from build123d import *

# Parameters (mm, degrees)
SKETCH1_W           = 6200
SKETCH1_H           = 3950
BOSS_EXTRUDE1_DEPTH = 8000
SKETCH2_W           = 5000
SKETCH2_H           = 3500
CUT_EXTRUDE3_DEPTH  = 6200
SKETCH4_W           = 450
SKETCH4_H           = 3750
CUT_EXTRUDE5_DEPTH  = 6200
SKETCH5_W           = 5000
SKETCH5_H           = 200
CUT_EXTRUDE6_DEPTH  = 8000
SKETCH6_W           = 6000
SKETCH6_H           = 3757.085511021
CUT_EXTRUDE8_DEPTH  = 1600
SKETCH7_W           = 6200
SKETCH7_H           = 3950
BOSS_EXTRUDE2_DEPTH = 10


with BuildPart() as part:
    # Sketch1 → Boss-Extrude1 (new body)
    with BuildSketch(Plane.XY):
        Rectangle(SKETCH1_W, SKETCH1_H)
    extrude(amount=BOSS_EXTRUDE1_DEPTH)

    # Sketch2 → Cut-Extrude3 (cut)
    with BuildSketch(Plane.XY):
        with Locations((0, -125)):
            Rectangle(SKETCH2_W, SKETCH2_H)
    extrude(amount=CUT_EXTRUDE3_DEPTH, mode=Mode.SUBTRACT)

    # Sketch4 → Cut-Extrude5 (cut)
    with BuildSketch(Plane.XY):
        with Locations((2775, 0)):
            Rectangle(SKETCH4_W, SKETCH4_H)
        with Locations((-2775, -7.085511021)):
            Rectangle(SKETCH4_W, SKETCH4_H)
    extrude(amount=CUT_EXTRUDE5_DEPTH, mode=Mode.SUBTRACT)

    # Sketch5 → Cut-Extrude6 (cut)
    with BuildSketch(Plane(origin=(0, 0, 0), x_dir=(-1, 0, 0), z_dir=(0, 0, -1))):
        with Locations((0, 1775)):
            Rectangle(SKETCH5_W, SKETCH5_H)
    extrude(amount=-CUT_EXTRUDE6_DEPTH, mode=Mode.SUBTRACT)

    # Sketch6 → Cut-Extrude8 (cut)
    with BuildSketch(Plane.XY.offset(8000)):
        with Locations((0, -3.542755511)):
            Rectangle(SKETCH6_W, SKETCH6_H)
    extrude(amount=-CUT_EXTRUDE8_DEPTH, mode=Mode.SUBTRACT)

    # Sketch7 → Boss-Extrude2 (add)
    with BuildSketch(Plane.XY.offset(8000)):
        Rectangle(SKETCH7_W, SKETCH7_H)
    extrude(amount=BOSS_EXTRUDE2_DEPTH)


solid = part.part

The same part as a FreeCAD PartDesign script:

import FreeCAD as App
import Part
import Sketcher
from FreeCAD import Vector
Q = App.Units.Quantity


def add_polygon(sketch, points):
    """Adds a closed chain of lines whose ends are joined by coincident constraints."""
    first, n = sketch.GeometryCount, len(points)
    for a, b in zip(points, points[1:] + points[:1]):
        sketch.addGeometry(Part.LineSegment(App.Vector(*a, 0), App.Vector(*b, 0)), False)
    for i in range(n):
        sketch.addConstraint(Sketcher.Constraint("Coincident", first + i, 2, first + (i + 1) % n, 1))

doc = App.newDocument("Part")
body = doc.addObject("PartDesign::Body", "Body")

# Sketch on XY plane
sketch1 = body.newObject("Sketcher::SketchObject", "Sketch")
sketch1.AttachmentSupport = (doc.getObject("XY_Plane"), [""])
sketch1.MapMode = "FlatFace"
add_polygon(sketch1, [(-3100, 1975), (-3100, -1975), (3100, -1975), (3100, 1975)])  # lines 0-3
sketch1.addConstraint([
    Sketcher.Constraint("Vertical", 0),
    Sketcher.Constraint("Horizontal", 1),
    Sketcher.Constraint("Vertical", 2),
    Sketcher.Constraint("Horizontal", 3),
    Sketcher.Constraint("Symmetric", 0, 2, 2, 2, -1, 1),
    Sketcher.Constraint("DistanceX", 1, 1, 1, 2, Q("6200 mm")),
    Sketcher.Constraint("DistanceY", 0, 2, 0, 1, Q("3950 mm")),
])
pad1 = body.newObject("PartDesign::Pad", "Pad")
pad1.Profile = sketch1
pad1.Length = 8000

# Sketch on XY plane
sketch2 = body.newObject("Sketcher::SketchObject", "Sketch001")
sketch2.AttachmentSupport = (doc.getObject("XY_Plane"), [""])
sketch2.MapMode = "FlatFace"
add_polygon(sketch2, [(-2500, 1625), (-2500, -1875), (2500, -1875), (2500, 1625)])  # lines 0-3
sketch2.addConstraint([
    Sketcher.Constraint("Vertical", 0),
    Sketcher.Constraint("Horizontal", 1),
    Sketcher.Constraint("Vertical", 2),
    Sketcher.Constraint("Horizontal", 3),
    Sketcher.Constraint("DistanceX", 1, 1, 1, 2, Q("5000 mm")),
    Sketcher.Constraint("DistanceY", 0, 2, 0, 1, Q("3500 mm")),
    Sketcher.Constraint("DistanceX", 0, 2, -1, 1, Q("2500 mm")),
    Sketcher.Constraint("DistanceY", 0, 2, -1, 1, Q("1875 mm")),
])
pocket1 = body.newObject("PartDesign::Pocket", "Pocket")
pocket1.Profile = sketch2
pocket1.Length = 6200
pocket1.Reversed = True

# Sketch on XY plane
sketch3 = body.newObject("Sketcher::SketchObject", "Sketch002")
sketch3.AttachmentSupport = (doc.getObject("XY_Plane"), [""])
sketch3.MapMode = "FlatFace"
add_polygon(sketch3, [(2550, 1875), (2550, -1875), (3000, -1875), (3000, 1875)])  # lines 0-3
add_polygon(sketch3, [(-3000, 1868), (-3000, -1882), (-2550, -1882), (-2550, 1868)])  # lines 4-7
sketch3.addConstraint([
    Sketcher.Constraint("Vertical", 0),
    Sketcher.Constraint("Horizontal", 1),
    Sketcher.Constraint("Vertical", 2),
    Sketcher.Constraint("Horizontal", 3),
    Sketcher.Constraint("Vertical", 4),
    Sketcher.Constraint("Horizontal", 5),
    Sketcher.Constraint("Vertical", 6),
    Sketcher.Constraint("Horizontal", 7),
    Sketcher.Constraint("Equal", 3, 5),
    Sketcher.Constraint("Equal", 2, 4),
    Sketcher.Constraint("DistanceX", 1, 1, 1, 2, Q("450 mm")),
    Sketcher.Constraint("DistanceY", 0, 2, 0, 1, Q("3750 mm")),
    Sketcher.Constraint("DistanceX", -1, 1, 0, 2, Q("2550 mm")),
    Sketcher.Constraint("DistanceY", 0, 2, -1, 1, Q("1875 mm")),
    Sketcher.Constraint("DistanceX", 4, 2, -1, 1, Q("3000 mm")),
    Sketcher.Constraint("DistanceY", 4, 2, -1, 1, Q("1882.085511 mm")),
])
pocket2 = body.newObject("PartDesign::Pocket", "Pocket001")
pocket2.Profile = sketch3
pocket2.Length = 6200
pocket2.Reversed = True

# Sketch on XY plane
sketch4 = body.newObject("Sketcher::SketchObject", "Sketch003")
sketch4.AttachmentSupport = (doc.getObject("XY_Plane"), [""])
sketch4.MapMode = "FlatFace"
add_polygon(sketch4, [(2500, 1875), (2500, 1675), (-2500, 1675), (-2500, 1875)])  # lines 0-3
sketch4.addConstraint([
    Sketcher.Constraint("Vertical", 0),
    Sketcher.Constraint("Horizontal", 1),
    Sketcher.Constraint("Vertical", 2),
    Sketcher.Constraint("Horizontal", 3),
    Sketcher.Constraint("DistanceX", 1, 2, 1, 1, Q("5000 mm")),
    Sketcher.Constraint("DistanceY", 0, 2, 0, 1, Q("200 mm")),
    Sketcher.Constraint("DistanceX", -1, 1, 0, 2, Q("2500 mm")),
    Sketcher.Constraint("DistanceY", -1, 1, 0, 2, Q("1675 mm")),
])
pocket3 = body.newObject("PartDesign::Pocket", "Pocket002")
pocket3.Profile = sketch4
pocket3.Length = 8000
pocket3.Reversed = True

# Sketch on XY plane
sketch5 = body.newObject("Sketcher::SketchObject", "Sketch004")
sketch5.AttachmentSupport = (doc.getObject("XY_Plane"), [""])
sketch5.MapMode = "FlatFace"
sketch5.AttachmentOffset = App.Placement(Vector(0, 0, 8000), App.Rotation())
add_polygon(sketch5, [(-3000, 1875), (-3000, -1882), (3000, -1882), (3000, 1875)])  # lines 0-3
sketch5.addConstraint([
    Sketcher.Constraint("Vertical", 0),
    Sketcher.Constraint("Horizontal", 1),
    Sketcher.Constraint("Vertical", 2),
    Sketcher.Constraint("Horizontal", 3),
    Sketcher.Constraint("DistanceX", 1, 1, 1, 2, Q("6000 mm")),
    Sketcher.Constraint("DistanceX", 0, 2, -1, 1, Q("3000 mm")),
    Sketcher.Constraint("DistanceY", -1, 1, 2, 2, Q("1875 mm")),
    Sketcher.Constraint("DistanceY", 0, 2, 0, 1, Q("3757.085511 mm")),
])
pocket4 = body.newObject("PartDesign::Pocket", "Pocket003")
pocket4.Profile = sketch5
pocket4.Length = 1600

# Sketch on XY plane
sketch6 = body.newObject("Sketcher::SketchObject", "Sketch005")
sketch6.AttachmentSupport = (doc.getObject("XY_Plane"), [""])
sketch6.MapMode = "FlatFace"
sketch6.AttachmentOffset = App.Placement(Vector(0, 0, 8000), App.Rotation())
add_polygon(sketch6, [(-3100, 1975), (-3100, -1975), (3100, -1975), (3100, 1975)])  # lines 0-3
sketch6.addConstraint([
    Sketcher.Constraint("Vertical", 0),
    Sketcher.Constraint("Horizontal", 1),
    Sketcher.Constraint("Vertical", 2),
    Sketcher.Constraint("Horizontal", 3),
    Sketcher.Constraint("Symmetric", 0, 2, 2, 2, -1, 1),
    Sketcher.Constraint("DistanceX", 1, 1, 1, 2, Q("6200 mm")),
    Sketcher.Constraint("DistanceY", 0, 2, 0, 1, Q("3950 mm")),
])
pad2 = body.newObject("PartDesign::Pad", "Pad001")
pad2.Profile = sketch6
pad2.Length = 10

doc.recompute()
